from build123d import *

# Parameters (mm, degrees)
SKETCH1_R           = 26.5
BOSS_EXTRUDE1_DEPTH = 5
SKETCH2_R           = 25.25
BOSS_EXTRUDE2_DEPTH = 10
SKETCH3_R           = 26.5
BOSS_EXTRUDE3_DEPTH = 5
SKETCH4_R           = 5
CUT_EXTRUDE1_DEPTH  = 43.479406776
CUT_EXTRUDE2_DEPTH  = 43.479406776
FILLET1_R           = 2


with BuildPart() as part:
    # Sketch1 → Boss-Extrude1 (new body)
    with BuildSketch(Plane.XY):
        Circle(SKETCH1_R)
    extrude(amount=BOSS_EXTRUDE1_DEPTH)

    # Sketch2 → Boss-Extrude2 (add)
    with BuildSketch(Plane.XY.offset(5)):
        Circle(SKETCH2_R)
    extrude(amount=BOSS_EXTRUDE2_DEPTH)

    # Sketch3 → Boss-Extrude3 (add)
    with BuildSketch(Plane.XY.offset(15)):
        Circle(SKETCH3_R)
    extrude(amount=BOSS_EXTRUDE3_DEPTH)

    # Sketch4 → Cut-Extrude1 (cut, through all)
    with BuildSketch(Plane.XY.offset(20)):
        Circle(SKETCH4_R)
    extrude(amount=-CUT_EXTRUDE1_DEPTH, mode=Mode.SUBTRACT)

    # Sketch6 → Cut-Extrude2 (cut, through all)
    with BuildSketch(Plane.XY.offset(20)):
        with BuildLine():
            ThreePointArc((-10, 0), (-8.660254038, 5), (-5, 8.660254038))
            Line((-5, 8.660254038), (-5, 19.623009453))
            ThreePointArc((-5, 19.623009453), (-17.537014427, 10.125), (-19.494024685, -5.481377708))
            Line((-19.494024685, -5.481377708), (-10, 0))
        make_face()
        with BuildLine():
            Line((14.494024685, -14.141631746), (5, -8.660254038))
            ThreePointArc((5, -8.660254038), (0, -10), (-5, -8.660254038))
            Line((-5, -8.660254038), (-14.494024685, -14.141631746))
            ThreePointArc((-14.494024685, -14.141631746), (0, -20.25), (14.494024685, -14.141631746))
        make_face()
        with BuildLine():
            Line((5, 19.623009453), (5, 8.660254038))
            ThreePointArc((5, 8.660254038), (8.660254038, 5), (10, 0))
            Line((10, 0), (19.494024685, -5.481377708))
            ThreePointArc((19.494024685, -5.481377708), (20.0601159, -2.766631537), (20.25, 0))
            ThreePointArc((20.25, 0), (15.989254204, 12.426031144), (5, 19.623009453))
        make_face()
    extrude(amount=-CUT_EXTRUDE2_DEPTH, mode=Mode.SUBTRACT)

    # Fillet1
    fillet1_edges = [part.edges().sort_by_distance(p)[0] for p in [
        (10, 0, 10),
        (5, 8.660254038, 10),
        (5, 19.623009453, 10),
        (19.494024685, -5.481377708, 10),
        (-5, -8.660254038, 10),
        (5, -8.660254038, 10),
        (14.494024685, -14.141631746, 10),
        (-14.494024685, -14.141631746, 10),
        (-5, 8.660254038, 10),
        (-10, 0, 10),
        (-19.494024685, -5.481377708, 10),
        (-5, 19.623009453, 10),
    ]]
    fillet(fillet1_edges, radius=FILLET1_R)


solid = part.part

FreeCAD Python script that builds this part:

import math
import FreeCAD as App
import Part
import Sketcher
Q = App.Units.Quantity


def edges_at(feature, points):
    """Names of the edges that pass closest to the given points."""
    edges = feature.Shape.Edges
    near = lambda p: min(range(len(edges)), key=lambda i: edges[i].distToShape(Part.Vertex(*p))[0])
    return sorted({f"Edge{near(p) + 1}" for p in points})

doc = App.newDocument("Part")
body = doc.addObject("PartDesign::Body", "Body")

# Sketch on XY plane
sketch1 = body.newObject("Sketcher::SketchObject", "Sketch")
sketch1.AttachmentSupport = (doc.getObject("XY_Plane"), [""])
sketch1.MapMode = "FlatFace"
sketch1.addGeometry(Part.Circle(App.Vector(0, 0, 0), App.Vector(0, 0, 1), 26), False)
sketch1.addConstraint([
    Sketcher.Constraint("Coincident", 0, 3, -1, 1),
    Sketcher.Constraint("Diameter", 0, Q("53 mm")),
])
pad1 = body.newObject("PartDesign::Pad", "Pad")
pad1.Profile = sketch1
pad1.Length = 5

# Sketch on XY plane
sketch2 = body.newObject("Sketcher::SketchObject", "Sketch001")
sketch2.AttachmentSupport = (doc.getObject("XY_Plane"), [""])
sketch2.MapMode = "FlatFace"
sketch2.AttachmentOffset = App.Placement(App.Vector(0, 0, 5), App.Rotation())
sketch2.addGeometry(Part.Circle(App.Vector(0, 0, 0), App.Vector(0, 0, 1), 25), False)
sketch2.addConstraint([
    Sketcher.Constraint("Coincident", 0, 3, -1, 1),
    Sketcher.Constraint("Diameter", 0, Q("50.5 mm")),
])
pad2 = body.newObject("PartDesign::Pad", "Pad001")
pad2.Profile = sketch2
pad2.Length = 10

# Sketch on XY plane
sketch3 = body.newObject("Sketcher::SketchObject", "Sketch002")
sketch3.AttachmentSupport = (doc.getObject("XY_Plane"), [""])
sketch3.MapMode = "FlatFace"
sketch3.AttachmentOffset = App.Placement(App.Vector(0, 0, 15), App.Rotation())
sketch3.addGeometry(Part.Circle(App.Vector(0, 0, 0), App.Vector(0, 0, 1), 26), False)
sketch3.addConstraint([
    Sketcher.Constraint("Coincident", 0, 3, -1, 1),
    Sketcher.Constraint("Diameter", 0, Q("53 mm")),
])
pad3 = body.newObject("PartDesign::Pad", "Pad002")
pad3.Profile = sketch3
pad3.Length = 5

# Sketch on XY plane
sketch4 = body.newObject("Sketcher::SketchObject", "Sketch003")
sketch4.AttachmentSupport = (doc.getObject("XY_Plane"), [""])
sketch4.MapMode = "FlatFace"
sketch4.AttachmentOffset = App.Placement(App.Vector(0, 0, 20), App.Rotation())
sketch4.addGeometry(Part.Circle(App.Vector(0, 0, 0), App.Vector(0, 0, 1), 5), False)
sketch4.addConstraint([
    Sketcher.Constraint("Coincident", 0, 3, -1, 1),
    Sketcher.Constraint("Diameter", 0, Q("10 mm")),
])
pocket1 = body.newObject("PartDesign::Pocket", "Pocket")
pocket1.Profile = sketch4
pocket1.Type = "ThroughAll"

# Sketch on XY plane
sketch5 = body.newObject("Sketcher::SketchObject", "Sketch004")
sketch5.AttachmentSupport = (doc.getObject("XY_Plane"), [""])
sketch5.MapMode = "FlatFace"
sketch5.AttachmentOffset = App.Placement(App.Vector(0, 0, 20), App.Rotation())
sketch5.addGeometry([
    Part.ArcOfCircle(Part.Circle(App.Vector(0, 0, 0), App.Vector(0, 0, 1), 10), math.radians(120), math.radians(180)),  # 0
    Part.LineSegment(App.Vector(-5, 9, 0), App.Vector(-5, 20, 0)),  # 1
    Part.ArcOfCircle(Part.Circle(App.Vector(0, 0, 0), App.Vector(0, 0, 1), 20), math.radians(104), math.radians(196)),  # 2
    Part.LineSegment(App.Vector(-19, -5, 0), App.Vector(-10, 0, 0)),  # 3
    Part.LineSegment(App.Vector(14, -14, 0), App.Vector(5, -9, 0)),  # 4
    Part.ArcOfCircle(Part.Circle(App.Vector(0, 0, 0), App.Vector(0, 0, 1), 10), math.radians(-120), math.radians(-60)),  # 5
    Part.LineSegment(App.Vector(-5, -9, 0), App.Vector(-14, -14, 0)),  # 6
    Part.ArcOfCircle(Part.Circle(App.Vector(0, 0, 0), App.Vector(0, 0, 1), 20), math.radians(-136), math.radians(-44)),  # 7
    Part.LineSegment(App.Vector(5, 20, 0), App.Vector(5, 9, 0)),  # 8
    Part.ArcOfCircle(Part.Circle(App.Vector(0, 0, 0), App.Vector(0, 0, 1), 10), math.radians(0), math.radians(60)),  # 9
    Part.LineSegment(App.Vector(10, 0, 0), App.Vector(19, -5, 0)),  # 10
    Part.ArcOfCircle(Part.Circle(App.Vector(0, 0, 0), App.Vector(0, 0, 1), 20), math.radians(-15.71), math.radians(0)),  # 11
    Part.ArcOfCircle(Part.Circle(App.Vector(0, 0, 0), App.Vector(0, 0, 1), 20), math.radians(0), math.radians(76)),  # 12
], False)
sketch5.addConstraint([
    Sketcher.Constraint("Coincident", 0, 1, 1, 1),
    Sketcher.Constraint("Coincident", 1, 2, 2, 1),
    Sketcher.Constraint("Coincident", 2, 2, 3, 1),
    Sketcher.Constraint("Coincident", 3, 2, 0, 2),
    Sketcher.Constraint("Coincident", 4, 2, 5, 2),
    Sketcher.Constraint("Coincident", 5, 1, 6, 1),
    Sketcher.Constraint("Coincident", 6, 2, 7, 1),
    Sketcher.Constraint("Coincident", 7, 2, 4, 1),
    Sketcher.Constraint("Coincident", 8, 2, 9, 2),
    Sketcher.Constraint("Coincident", 9, 1, 10, 1),
    Sketcher.Constraint("Coincident", 10, 2, 11, 1),
    Sketcher.Constraint("Tangent", 11, 2, 12, 1),
    Sketcher.Constraint("Coincident", 12, 2, 8, 1),
    Sketcher.Constraint("Vertical", 1),
    Sketcher.Constraint("Vertical", 8),
    Sketcher.Constraint("Coincident", 0, 3, -1, 1),
    Sketcher.Constraint("Coincident", 2, 3, -1, 1),
    Sketcher.Constraint("Coincident", 5, 3, -1, 1),
    Sketcher.Constraint("Coincident", 7, 3, -1, 1),
    Sketcher.Constraint("Coincident", 9, 3, -1, 1),
    Sketcher.Constraint("Coincident", 11, 3, -1, 1),
    Sketcher.Constraint("Equal", 0, 5),
    Sketcher.Constraint("Equal", 2, 7),
    Sketcher.Constraint("Equal", 5, 9),
    Sketcher.Constraint("Equal", 7, 11),
    Sketcher.Constraint("Equal", 11, 12),
    Sketcher.Constraint("PointOnObject", 3, 2, -1),
    Sketcher.Constraint("PointOnObject", 9, 1, -1),
    Sketcher.Constraint("PointOnObject", 11, 2, -1),
    Sketcher.Constraint("Parallel", 3, 6),
    Sketcher.Constraint("Parallel", 4, 10),
    Sketcher.Constraint("Horizontal", 4, 2, 5, 1),
    Sketcher.Constraint("Horizontal", 6, 2, 7, 2),
    Sketcher.Constraint("Horizontal", 0, 1, 8, 2),
    Sketcher.Constraint("Vertical", 1, 2, 5, 1),
    Sketcher.Constraint("Equal", 3, 4),
    Sketcher.Constraint("Radius", 0, Q("10 mm")),
    Sketcher.Constraint("Angle", 3, Q("30 deg")),
    Sketcher.Constraint("Radius", 2, Q("20.25 mm")),
])
pocket2 = body.newObject("PartDesign::Pocket", "Pocket001")
pocket2.Profile = sketch5
pocket2.Type = "ThroughAll"
doc.recompute()

fillet = body.newObject("PartDesign::Fillet", "Fillet")
fillet.Base = (pocket2, edges_at(pocket2, [
    (10, 0, 10),
    (5, 8.66, 10),
    (5, 19.623, 10),
    (19.494, -5.481, 10),
    (-5, -8.66, 10),
    (5, -8.66, 10),
    (14.494, -14.142, 10),
    (-14.494, -14.142, 10),
    (-5, 8.66, 10),
    (-10, 0, 10),
    (-19.494, -5.481, 10),
    (-5, 19.623, 10),
]))
fillet.Radius = 2

doc.recompute()
